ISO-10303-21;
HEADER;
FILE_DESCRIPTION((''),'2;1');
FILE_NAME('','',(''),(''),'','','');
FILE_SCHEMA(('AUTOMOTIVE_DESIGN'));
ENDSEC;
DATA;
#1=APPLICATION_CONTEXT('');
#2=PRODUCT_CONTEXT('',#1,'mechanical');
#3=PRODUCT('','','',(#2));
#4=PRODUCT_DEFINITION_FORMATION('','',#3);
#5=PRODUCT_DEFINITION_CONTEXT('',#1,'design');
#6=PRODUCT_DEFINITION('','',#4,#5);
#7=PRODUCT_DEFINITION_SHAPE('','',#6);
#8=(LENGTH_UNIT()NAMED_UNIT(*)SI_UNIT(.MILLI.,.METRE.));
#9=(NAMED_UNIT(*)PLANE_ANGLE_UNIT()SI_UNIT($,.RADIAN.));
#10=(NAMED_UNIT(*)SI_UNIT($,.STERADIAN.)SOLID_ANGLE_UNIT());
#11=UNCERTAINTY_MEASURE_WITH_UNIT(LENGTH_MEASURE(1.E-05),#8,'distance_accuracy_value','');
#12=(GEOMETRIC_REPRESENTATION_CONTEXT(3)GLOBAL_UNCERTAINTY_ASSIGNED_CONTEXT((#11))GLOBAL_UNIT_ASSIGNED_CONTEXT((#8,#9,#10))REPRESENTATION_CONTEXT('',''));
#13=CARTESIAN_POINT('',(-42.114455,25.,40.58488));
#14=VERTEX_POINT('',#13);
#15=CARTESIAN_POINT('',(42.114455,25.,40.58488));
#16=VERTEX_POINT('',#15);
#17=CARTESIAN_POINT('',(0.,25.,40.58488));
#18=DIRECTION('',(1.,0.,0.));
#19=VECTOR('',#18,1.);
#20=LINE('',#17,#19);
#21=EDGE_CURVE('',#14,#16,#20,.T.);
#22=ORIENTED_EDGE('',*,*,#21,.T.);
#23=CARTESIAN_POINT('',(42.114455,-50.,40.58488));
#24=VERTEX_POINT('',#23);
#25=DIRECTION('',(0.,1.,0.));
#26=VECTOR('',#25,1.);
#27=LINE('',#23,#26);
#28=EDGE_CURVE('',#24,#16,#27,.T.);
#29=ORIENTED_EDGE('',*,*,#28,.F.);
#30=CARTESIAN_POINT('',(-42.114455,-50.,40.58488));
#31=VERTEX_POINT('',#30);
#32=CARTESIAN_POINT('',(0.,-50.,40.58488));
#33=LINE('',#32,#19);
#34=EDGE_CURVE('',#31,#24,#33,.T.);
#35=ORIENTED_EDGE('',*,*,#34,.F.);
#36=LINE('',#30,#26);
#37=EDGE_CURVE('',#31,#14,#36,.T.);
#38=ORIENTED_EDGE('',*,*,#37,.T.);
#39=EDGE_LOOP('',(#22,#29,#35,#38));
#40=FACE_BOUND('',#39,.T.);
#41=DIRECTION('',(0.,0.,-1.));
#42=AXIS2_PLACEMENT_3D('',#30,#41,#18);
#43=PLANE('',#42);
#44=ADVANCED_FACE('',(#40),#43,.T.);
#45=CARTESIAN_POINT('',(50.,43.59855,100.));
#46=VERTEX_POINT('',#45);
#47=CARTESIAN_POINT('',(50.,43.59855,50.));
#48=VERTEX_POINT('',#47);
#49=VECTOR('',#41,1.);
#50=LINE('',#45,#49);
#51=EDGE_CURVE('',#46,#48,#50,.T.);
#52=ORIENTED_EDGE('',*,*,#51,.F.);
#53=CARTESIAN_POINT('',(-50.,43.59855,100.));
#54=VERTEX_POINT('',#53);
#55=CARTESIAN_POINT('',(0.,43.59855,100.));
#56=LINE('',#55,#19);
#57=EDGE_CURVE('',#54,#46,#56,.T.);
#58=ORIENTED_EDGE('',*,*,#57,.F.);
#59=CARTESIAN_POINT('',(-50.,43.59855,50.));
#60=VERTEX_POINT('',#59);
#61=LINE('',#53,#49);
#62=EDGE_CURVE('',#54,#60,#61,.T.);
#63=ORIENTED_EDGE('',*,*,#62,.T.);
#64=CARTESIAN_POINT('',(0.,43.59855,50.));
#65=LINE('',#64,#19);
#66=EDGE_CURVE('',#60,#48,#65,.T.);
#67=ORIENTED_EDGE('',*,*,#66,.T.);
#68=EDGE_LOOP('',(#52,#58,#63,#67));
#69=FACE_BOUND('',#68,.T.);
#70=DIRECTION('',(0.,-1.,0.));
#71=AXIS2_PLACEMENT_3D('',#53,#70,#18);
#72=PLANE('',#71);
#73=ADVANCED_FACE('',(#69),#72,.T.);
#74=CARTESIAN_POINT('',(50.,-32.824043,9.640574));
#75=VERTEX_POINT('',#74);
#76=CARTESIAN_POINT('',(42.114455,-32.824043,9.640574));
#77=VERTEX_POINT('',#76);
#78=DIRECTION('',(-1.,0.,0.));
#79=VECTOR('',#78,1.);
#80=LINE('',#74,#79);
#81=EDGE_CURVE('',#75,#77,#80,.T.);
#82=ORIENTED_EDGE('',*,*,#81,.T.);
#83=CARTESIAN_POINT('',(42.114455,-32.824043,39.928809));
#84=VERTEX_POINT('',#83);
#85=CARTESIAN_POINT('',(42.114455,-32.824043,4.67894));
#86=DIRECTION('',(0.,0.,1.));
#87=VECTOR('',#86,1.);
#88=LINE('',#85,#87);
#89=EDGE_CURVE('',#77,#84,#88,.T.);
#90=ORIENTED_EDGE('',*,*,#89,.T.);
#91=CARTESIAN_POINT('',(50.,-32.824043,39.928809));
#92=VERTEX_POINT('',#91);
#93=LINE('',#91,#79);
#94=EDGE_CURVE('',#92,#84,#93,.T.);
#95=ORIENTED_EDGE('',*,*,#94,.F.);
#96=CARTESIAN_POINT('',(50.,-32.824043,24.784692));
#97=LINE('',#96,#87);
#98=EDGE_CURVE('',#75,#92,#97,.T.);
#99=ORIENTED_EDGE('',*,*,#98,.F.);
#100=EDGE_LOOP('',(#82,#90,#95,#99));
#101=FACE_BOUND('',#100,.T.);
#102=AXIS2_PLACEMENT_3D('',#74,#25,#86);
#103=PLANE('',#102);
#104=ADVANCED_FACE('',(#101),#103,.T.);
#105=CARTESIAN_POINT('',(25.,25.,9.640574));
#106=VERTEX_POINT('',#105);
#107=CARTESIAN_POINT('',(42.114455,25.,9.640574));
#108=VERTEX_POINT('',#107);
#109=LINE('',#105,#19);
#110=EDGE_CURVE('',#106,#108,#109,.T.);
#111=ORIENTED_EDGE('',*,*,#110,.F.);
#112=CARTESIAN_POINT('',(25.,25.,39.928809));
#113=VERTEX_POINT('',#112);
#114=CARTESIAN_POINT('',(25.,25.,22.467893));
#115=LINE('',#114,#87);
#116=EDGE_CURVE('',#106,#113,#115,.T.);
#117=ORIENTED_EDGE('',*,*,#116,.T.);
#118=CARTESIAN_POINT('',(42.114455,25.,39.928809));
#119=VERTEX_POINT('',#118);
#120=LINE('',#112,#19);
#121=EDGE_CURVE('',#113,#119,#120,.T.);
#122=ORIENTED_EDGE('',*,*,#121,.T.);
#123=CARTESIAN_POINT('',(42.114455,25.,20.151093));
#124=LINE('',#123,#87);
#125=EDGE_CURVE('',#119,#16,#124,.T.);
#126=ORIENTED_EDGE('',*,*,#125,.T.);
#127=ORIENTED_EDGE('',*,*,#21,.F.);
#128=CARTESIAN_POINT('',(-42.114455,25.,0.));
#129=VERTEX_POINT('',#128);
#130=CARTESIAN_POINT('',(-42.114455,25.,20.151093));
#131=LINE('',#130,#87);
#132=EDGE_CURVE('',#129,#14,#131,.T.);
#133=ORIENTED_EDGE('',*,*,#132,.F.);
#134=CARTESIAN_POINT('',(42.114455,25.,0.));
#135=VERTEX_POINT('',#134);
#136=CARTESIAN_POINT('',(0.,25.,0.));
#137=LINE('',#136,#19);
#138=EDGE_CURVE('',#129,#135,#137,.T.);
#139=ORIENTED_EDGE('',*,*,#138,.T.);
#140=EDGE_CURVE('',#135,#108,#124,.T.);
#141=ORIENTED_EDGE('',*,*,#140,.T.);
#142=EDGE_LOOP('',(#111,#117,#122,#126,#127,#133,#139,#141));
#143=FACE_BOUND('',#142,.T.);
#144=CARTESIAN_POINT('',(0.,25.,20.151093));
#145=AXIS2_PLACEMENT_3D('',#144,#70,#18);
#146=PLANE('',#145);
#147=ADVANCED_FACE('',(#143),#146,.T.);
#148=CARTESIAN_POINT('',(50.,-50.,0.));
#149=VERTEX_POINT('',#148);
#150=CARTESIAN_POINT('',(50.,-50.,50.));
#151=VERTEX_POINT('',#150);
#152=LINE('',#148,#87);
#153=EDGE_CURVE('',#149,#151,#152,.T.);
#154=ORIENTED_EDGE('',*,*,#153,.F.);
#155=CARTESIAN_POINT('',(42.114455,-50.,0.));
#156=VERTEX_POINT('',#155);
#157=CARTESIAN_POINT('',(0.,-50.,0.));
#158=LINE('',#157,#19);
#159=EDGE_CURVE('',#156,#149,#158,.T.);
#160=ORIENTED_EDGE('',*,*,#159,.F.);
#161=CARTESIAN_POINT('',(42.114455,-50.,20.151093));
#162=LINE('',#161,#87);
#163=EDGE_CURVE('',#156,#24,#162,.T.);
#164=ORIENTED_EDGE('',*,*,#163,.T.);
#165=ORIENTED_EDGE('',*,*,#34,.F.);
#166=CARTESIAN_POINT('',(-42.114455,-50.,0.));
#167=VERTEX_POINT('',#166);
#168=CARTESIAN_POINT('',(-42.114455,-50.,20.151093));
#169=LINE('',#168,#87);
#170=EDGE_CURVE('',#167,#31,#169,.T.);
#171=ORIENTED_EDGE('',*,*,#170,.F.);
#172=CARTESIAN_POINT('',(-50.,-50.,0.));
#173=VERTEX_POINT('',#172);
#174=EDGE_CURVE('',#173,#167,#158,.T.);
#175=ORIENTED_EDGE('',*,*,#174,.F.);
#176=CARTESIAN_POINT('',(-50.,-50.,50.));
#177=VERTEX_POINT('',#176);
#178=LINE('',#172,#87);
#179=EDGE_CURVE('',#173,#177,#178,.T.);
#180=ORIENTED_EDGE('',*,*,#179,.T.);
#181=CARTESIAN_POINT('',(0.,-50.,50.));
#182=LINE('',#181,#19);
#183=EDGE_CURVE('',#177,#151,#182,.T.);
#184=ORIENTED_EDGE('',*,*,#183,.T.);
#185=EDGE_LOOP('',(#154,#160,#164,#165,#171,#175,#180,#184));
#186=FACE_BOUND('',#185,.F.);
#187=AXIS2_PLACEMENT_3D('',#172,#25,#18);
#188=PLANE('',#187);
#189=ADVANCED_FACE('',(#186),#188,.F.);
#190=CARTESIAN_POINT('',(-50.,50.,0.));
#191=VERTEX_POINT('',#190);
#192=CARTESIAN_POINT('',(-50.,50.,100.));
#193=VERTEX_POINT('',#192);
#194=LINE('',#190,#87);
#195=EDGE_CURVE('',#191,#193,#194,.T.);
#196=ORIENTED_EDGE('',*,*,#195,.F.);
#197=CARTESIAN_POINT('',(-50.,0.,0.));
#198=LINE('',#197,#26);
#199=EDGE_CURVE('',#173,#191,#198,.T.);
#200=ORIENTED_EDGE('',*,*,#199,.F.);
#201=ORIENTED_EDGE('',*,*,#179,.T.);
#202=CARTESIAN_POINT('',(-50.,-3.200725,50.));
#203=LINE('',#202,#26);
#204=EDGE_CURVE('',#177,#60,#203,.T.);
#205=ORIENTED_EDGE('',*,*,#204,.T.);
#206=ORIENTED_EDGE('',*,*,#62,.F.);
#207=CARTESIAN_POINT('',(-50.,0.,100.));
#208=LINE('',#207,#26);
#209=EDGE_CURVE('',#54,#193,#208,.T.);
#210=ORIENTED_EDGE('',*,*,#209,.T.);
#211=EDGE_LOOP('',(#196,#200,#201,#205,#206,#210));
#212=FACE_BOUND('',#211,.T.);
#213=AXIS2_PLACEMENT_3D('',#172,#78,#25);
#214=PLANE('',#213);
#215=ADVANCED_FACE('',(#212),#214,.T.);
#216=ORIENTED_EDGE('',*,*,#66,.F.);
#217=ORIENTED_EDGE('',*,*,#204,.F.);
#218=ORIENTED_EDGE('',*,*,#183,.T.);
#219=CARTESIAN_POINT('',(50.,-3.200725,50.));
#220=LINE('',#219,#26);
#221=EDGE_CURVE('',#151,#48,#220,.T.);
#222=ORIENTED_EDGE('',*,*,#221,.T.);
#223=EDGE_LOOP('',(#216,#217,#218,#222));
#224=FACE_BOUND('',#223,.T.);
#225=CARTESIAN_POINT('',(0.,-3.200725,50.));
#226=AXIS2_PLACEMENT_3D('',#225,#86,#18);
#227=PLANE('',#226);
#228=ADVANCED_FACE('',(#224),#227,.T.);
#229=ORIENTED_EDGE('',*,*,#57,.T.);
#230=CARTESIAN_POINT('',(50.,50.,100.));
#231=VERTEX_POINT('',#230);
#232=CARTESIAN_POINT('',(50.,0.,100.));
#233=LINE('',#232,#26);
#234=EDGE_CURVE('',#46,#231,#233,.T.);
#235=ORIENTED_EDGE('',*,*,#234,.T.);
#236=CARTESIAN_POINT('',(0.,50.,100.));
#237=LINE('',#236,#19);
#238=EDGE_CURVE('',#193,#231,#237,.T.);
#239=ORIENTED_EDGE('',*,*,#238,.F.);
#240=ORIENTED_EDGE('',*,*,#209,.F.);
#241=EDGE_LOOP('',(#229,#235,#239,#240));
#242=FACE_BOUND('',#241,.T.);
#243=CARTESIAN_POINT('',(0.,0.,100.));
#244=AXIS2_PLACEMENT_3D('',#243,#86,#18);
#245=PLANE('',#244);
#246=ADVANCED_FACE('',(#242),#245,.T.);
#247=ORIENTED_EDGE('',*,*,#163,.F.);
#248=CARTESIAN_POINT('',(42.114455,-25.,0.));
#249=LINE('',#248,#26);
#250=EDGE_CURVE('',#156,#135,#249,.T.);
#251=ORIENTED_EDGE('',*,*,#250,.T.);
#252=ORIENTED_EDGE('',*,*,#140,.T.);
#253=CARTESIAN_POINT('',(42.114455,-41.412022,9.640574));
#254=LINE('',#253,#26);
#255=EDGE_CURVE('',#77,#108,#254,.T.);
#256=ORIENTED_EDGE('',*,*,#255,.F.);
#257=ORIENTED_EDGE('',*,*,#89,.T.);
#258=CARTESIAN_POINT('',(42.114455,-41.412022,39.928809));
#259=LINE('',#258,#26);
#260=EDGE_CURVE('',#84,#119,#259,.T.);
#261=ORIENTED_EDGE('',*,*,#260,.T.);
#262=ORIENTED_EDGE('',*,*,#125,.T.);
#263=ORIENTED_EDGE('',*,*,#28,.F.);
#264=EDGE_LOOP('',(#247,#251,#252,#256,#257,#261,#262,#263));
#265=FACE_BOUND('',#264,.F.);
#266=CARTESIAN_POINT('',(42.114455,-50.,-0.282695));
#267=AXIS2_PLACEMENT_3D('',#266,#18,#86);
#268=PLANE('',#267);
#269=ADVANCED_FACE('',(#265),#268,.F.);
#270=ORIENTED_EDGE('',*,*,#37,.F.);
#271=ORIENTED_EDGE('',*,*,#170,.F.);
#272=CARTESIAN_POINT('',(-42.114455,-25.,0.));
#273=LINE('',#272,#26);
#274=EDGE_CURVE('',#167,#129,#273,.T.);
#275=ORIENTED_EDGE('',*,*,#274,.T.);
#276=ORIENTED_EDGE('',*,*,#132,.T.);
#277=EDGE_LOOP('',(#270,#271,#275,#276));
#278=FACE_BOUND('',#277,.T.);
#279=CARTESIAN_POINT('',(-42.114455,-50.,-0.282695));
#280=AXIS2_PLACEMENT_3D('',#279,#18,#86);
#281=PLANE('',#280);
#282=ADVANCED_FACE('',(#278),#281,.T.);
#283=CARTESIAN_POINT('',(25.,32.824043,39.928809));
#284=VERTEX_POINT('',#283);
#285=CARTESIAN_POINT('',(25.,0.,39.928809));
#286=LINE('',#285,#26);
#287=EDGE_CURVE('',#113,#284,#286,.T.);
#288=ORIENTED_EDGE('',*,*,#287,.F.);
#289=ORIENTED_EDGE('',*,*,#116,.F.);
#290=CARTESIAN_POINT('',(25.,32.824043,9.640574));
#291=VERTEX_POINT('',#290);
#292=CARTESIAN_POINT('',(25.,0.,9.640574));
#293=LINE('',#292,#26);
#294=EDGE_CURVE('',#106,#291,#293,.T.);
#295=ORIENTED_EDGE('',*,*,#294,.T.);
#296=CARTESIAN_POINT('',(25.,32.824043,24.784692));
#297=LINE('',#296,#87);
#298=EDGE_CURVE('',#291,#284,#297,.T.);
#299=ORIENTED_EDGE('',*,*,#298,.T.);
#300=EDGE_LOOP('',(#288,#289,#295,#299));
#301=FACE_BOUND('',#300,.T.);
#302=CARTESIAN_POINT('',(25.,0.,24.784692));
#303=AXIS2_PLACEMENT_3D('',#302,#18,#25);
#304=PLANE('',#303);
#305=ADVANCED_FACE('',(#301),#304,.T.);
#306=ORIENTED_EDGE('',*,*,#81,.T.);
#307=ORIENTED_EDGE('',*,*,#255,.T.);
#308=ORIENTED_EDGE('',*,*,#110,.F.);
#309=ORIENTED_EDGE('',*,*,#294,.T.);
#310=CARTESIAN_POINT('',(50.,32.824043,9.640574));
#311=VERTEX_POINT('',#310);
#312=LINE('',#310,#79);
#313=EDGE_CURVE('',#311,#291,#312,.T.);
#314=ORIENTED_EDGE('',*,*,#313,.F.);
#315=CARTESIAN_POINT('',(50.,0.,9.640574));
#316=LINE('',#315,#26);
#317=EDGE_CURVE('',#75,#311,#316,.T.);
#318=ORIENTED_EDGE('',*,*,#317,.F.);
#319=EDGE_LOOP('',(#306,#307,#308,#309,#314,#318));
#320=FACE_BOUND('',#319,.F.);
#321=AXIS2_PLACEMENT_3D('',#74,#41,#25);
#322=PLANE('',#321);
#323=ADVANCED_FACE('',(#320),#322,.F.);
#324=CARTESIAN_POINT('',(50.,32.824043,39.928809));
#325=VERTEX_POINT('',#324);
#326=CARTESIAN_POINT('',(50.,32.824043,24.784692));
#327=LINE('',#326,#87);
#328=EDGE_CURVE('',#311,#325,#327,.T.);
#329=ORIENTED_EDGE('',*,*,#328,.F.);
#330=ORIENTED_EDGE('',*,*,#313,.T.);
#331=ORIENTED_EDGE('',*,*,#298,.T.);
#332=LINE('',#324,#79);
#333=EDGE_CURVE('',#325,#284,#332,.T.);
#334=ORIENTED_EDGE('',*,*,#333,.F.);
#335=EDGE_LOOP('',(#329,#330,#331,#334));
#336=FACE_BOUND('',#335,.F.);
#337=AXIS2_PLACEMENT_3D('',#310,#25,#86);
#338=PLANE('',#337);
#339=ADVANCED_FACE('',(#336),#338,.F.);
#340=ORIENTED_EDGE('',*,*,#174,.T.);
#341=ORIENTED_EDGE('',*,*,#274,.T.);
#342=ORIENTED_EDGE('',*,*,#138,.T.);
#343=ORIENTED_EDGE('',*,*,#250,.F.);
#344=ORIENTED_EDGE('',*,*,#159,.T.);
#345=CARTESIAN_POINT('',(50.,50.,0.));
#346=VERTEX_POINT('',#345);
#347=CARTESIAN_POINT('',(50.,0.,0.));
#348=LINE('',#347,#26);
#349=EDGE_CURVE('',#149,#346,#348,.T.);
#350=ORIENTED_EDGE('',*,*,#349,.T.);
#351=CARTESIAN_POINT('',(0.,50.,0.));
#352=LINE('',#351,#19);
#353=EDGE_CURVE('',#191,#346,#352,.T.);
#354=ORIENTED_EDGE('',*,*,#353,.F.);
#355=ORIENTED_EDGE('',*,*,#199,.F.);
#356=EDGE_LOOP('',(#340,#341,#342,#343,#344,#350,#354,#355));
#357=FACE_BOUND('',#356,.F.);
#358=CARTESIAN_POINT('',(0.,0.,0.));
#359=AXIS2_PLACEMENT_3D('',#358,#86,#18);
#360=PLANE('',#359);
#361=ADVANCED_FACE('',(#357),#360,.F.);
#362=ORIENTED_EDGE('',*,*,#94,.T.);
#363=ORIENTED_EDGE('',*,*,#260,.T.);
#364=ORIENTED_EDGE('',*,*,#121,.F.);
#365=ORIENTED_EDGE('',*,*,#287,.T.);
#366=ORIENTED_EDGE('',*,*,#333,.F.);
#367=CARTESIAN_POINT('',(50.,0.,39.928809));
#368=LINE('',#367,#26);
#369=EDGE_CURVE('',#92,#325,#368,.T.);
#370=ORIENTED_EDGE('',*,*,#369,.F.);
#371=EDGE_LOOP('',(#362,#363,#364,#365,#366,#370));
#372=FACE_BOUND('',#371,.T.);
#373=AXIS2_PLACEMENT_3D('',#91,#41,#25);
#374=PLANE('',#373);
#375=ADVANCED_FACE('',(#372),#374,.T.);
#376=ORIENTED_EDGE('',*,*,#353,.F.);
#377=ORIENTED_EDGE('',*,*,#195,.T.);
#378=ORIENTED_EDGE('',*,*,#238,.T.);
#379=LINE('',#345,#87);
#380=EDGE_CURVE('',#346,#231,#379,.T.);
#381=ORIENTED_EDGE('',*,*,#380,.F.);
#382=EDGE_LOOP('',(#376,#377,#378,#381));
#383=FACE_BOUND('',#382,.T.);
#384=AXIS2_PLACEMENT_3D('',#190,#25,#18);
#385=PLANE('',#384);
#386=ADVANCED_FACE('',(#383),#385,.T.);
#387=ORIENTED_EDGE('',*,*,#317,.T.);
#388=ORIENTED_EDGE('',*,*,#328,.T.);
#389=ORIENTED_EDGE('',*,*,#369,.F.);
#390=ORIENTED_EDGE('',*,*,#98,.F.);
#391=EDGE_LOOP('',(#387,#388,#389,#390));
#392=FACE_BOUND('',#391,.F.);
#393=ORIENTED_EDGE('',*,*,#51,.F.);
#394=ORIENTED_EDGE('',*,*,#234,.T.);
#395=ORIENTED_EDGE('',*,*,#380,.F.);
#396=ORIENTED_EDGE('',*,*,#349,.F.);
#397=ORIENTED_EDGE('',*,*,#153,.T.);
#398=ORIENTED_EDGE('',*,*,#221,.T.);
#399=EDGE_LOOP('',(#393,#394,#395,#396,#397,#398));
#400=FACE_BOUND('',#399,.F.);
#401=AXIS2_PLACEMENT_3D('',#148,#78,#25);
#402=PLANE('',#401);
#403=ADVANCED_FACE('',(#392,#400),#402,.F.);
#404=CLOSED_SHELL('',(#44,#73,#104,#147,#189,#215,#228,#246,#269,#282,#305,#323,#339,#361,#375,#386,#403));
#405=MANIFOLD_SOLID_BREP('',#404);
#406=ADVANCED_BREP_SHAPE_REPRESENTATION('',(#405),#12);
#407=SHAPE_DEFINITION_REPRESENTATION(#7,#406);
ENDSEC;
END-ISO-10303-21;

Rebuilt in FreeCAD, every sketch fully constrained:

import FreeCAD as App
import Part
import Sketcher

V = App.Vector
Q = App.Units.Quantity


def add_polygon(sketch, points):
    """Adds a closed chain of lines whose ends are joined by coincident constraints."""
    first, n = sketch.GeometryCount, len(points)
    for a, b in zip(points, points[1:] + points[:1]):
        sketch.addGeometry(Part.LineSegment(App.Vector(*a, 0), App.Vector(*b, 0)), False)
    for i in range(n):
        sketch.addConstraint(Sketcher.Constraint("Coincident", first + i, 2, first + (i + 1) % n, 1))

doc = App.newDocument("Part")
params = doc.addObject("Spreadsheet::Sheet", "Params")
for row, (alias, value) in enumerate([
    ("sketch1_width", "100 mm"),
    ("pad1_length", "100 mm"),
    ("sketch2_width", "100 mm"),
    ("pocket1_length", "50 mm"),
    ("pocket2_length", "75 mm"),
    ("pocket3_length", "25 mm"),
], start=1):
    params.set(f"A{row}", alias)
    params.set(f"B{row}", "=" + value)
    params.setAlias(f"B{row}", alias)

body = doc.addObject("PartDesign::Body", "Body")

sketch1 = body.newObject("Sketcher::SketchObject", "Sketch")
sketch1.AttachmentSupport = (doc.getObject("XY_Plane"), [""])
sketch1.MapMode = "FlatFace"
add_polygon(sketch1, [(-50, 50), (-50, -50), (50, -50), (50, 50)])
sketch1.addConstraint([
    Sketcher.Constraint("Vertical", 0),
    Sketcher.Constraint("Horizontal", 1),
    Sketcher.Constraint("Vertical", 2),
    Sketcher.Constraint("Horizontal", 3),
    Sketcher.Constraint("Symmetric", 0, 2, 2, 2, -1, 1),
    Sketcher.Constraint("Equal", 3, 0),
    Sketcher.Constraint("DistanceX", 1, 1, 1, 2, Q("100 mm")),
])
sketch1.setExpression("Constraints[10]", "Params.sketch1_width")
pad1 = body.newObject("PartDesign::Pad", "Pad")
pad1.Profile = sketch1
pad1.setExpression("Length", "Params.pad1_length")

sketch2 = body.newObject("Sketcher::SketchObject", "Sketch001")
sketch2.AttachmentSupport = (doc.getObject("XY_Plane"), [""])
sketch2.MapMode = "FlatFace"
sketch2.AttachmentOffset = App.Placement(V(0, 0, 100), App.Rotation())
add_polygon(sketch2, [(-50, 43.59855), (-50, -50), (50, -50), (50, 43.59855)])
sketch2.addConstraint([
    Sketcher.Constraint("Vertical", 0),
    Sketcher.Constraint("Horizontal", 1),
    Sketcher.Constraint("Vertical", 2),
    Sketcher.Constraint("Horizontal", 3),
    Sketcher.Constraint("DistanceX", 1, 1, 1, 2, Q("100 mm")),
    Sketcher.Constraint("DistanceX", 0, 2, -1, 1, Q("50 mm")),
    Sketcher.Constraint("DistanceY", 0, 2, -1, 1, Q("50 mm")),
    Sketcher.Constraint("DistanceY", 0, 2, 0, 1, Q("93.59855 mm")),
])
sketch2.setExpression("Constraints[8]", "Params.sketch2_width")
pocket1 = body.newObject("PartDesign::Pocket", "Pocket")
pocket1.Profile = sketch2
pocket1.setExpression("Length", "Params.pocket1_length")

sketch3 = body.newObject("Sketcher::SketchObject", "Sketch002")
sketch3.AttachmentSupport = (doc.getObject("XZ_Plane"), [""])
sketch3.MapMode = "FlatFace"
sketch3.AttachmentOffset = App.Placement(V(0, 0, 50), App.Rotation())
add_polygon(sketch3, [(-42.114455, 40.58488), (-42.114455, -0.282695), (42.114455, -0.282695), (42.114455, 40.58488)])
sketch3.addConstraint([
    Sketcher.Constraint("Vertical", 0),
    Sketcher.Constraint("Horizontal", 1),
    Sketcher.Constraint("Vertical", 2),
    Sketcher.Constraint("Horizontal", 3),
    Sketcher.Constraint("DistanceX", 1, 1, 1, 2, Q("84.22891 mm")),
    Sketcher.Constraint("DistanceY", 0, 2, 0, 1, Q("40.867575 mm")),
    Sketcher.Constraint("DistanceY", -1, 1, 2, 2, Q("40.58488 mm")),
    Sketcher.Constraint("DistanceX", 0, 2, -1, 1, Q("42.114455 mm")),
])
pocket2 = body.newObject("PartDesign::Pocket", "Pocket001")
pocket2.Profile = sketch3
pocket2.setExpression("Length", "Params.pocket2_length")

sketch4 = body.newObject("Sketcher::SketchObject", "Sketch003")
sketch4.AttachmentSupport = (doc.getObject("YZ_Plane"), [""])
sketch4.MapMode = "FlatFace"
sketch4.AttachmentOffset = App.Placement(V(0, 0, 50), App.Rotation())
add_polygon(sketch4, [(-32.824043, 39.928809), (-32.824043, 9.640574), (32.824043, 9.640574), (32.824043, 39.928809)])
sketch4.addConstraint([
    Sketcher.Constraint("Vertical", 0),
    Sketcher.Constraint("Horizontal", 1),
    Sketcher.Constraint("Vertical", 2),
    Sketcher.Constraint("Horizontal", 3),
    Sketcher.Constraint("DistanceX", 1, 1, 1, 2, Q("65.648086 mm")),
    Sketcher.Constraint("DistanceY", 0, 2, 0, 1, Q("30.288235 mm")),
    Sketcher.Constraint("DistanceY", -1, 1, 2, 2, Q("39.928809 mm")),
    Sketcher.Constraint("DistanceX", 0, 2, -1, 1, Q("32.824043 mm")),
])
pocket3 = body.newObject("PartDesign::Pocket", "Pocket002")
pocket3.Profile = sketch4
pocket3.setExpression("Length", "Params.pocket3_length")

doc.recompute()
